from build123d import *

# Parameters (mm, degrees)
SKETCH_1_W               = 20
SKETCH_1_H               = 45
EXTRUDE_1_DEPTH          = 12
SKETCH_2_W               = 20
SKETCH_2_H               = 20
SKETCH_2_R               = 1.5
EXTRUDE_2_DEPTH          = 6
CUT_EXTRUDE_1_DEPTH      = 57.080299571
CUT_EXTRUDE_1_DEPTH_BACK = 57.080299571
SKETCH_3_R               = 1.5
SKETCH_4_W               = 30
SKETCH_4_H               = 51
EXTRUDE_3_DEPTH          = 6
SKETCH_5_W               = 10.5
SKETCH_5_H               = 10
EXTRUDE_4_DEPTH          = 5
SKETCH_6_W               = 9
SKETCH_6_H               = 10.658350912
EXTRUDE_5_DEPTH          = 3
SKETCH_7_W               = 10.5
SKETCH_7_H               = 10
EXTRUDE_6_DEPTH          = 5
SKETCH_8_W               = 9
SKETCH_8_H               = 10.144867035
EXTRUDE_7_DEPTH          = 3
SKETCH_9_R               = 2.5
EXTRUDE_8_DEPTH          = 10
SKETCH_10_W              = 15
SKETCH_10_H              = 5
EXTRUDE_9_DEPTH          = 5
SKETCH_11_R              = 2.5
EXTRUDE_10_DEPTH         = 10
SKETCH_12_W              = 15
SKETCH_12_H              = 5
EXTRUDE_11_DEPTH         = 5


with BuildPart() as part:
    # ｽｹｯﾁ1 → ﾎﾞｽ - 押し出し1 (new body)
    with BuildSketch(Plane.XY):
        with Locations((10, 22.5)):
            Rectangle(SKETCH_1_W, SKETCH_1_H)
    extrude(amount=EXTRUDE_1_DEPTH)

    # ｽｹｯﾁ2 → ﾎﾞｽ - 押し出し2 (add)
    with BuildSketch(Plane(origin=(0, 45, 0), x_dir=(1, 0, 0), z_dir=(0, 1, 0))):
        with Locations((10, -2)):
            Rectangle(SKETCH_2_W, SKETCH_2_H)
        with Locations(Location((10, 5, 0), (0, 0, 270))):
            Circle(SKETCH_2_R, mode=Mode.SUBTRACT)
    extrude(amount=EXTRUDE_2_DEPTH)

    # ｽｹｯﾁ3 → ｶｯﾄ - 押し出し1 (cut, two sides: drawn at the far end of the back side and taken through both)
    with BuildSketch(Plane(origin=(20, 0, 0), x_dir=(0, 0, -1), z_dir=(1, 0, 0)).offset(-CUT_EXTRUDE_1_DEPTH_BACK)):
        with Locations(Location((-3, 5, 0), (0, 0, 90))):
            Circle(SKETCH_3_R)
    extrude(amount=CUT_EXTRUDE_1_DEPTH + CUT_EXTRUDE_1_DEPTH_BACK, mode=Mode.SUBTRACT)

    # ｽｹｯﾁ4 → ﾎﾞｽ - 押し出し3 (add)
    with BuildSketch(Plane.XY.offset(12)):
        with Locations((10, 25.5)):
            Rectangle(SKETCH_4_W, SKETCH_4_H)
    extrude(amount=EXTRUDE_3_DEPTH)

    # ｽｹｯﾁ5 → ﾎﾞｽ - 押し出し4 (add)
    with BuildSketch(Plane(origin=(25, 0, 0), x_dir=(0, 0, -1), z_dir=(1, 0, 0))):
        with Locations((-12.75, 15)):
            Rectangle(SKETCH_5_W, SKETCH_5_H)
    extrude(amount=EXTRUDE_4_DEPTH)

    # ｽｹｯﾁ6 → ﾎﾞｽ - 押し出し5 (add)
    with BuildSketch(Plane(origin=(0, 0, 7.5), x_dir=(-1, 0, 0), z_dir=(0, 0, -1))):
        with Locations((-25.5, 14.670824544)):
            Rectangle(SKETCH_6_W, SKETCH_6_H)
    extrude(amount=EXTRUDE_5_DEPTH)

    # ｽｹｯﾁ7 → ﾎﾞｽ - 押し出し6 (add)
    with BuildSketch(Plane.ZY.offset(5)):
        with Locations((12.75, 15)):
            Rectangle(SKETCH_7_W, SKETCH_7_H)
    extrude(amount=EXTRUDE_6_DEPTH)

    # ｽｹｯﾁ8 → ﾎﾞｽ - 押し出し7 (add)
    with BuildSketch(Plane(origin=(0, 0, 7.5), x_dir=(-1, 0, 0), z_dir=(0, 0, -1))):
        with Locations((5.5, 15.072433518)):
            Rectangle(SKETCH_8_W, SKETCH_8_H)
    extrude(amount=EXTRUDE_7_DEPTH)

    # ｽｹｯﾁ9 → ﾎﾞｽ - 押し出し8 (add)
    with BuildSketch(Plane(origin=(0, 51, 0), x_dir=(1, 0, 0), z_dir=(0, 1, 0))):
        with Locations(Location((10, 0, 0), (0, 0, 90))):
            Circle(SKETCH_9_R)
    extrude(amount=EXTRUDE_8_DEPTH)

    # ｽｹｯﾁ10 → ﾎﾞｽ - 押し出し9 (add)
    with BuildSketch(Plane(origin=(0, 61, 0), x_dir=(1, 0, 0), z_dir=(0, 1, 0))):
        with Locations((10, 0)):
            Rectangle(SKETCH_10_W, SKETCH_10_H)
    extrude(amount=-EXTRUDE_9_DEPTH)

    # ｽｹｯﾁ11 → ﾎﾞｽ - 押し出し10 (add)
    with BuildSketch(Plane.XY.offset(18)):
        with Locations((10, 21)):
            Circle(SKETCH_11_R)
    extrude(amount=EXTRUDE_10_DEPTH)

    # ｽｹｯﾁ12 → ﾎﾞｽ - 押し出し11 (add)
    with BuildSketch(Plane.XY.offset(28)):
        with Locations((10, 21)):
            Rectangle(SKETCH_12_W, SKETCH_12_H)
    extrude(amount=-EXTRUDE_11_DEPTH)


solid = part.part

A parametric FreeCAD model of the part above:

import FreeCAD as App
import Part
import Sketcher
from FreeCAD import Vector
Q = App.Units.Quantity


def add_polygon(sketch, points):
    """Adds a closed chain of lines whose ends are joined by coincident constraints."""
    first, n = sketch.GeometryCount, len(points)
    for a, b in zip(points, points[1:] + points[:1]):
        sketch.addGeometry(Part.LineSegment(App.Vector(*a, 0), App.Vector(*b, 0)), False)
    for i in range(n):
        sketch.addConstraint(Sketcher.Constraint("Coincident", first + i, 2, first + (i + 1) % n, 1))

doc = App.newDocument("Part")
params = doc.addObject("Spreadsheet::Sheet", "Params")
for row, (alias, value) in enumerate([
    ("sketch1_width", "20 mm"),
    ("sketch1_height", "45 mm"),
    ("pad1_length", "12 mm"),
    ("sketch2_diameter", "3 mm"),
    ("sketch2_width", "20 mm"),
    ("pad2_length", "6 mm"),
    ("sketch3_diameter", "3 mm"),
    ("sketch4_width", "30 mm"),
    ("sketch4_height", "51 mm"),
    ("pad3_length", "6 mm"),
    ("sketch5_width", "10 mm"),
    ("sketch5_height", "10.5 mm"),
    ("pad4_length", "5 mm"),
    ("sketch6_width", "9 mm"),
    ("pad5_length", "3 mm"),
    ("sketch7_width", "10 mm"),
    ("sketch7_height", "10.5 mm"),
    ("pad6_length", "5 mm"),
    ("sketch8_width", "9 mm"),
    ("pad7_length", "3 mm"),
    ("sketch9_diameter", "5 mm"),
    ("pad8_length", "10 mm"),
    ("sketch10_width", "15 mm"),
    ("sketch10_height", "5 mm"),
    ("pad9_length", "5 mm"),
    ("sketch11_diameter", "5 mm"),
    ("pad10_length", "10 mm"),
    ("sketch12_width", "15 mm"),
    ("sketch12_height", "5 mm"),
    ("pad11_length", "5 mm"),
], start=1):
    params.set(f"A{row}", alias)
    params.set(f"B{row}", "=" + value)
    params.setAlias(f"B{row}", alias)

body = doc.addObject("PartDesign::Body", "Body")

# Sketch on XY plane
sketch1 = body.newObject("Sketcher::SketchObject", "Sketch")
sketch1.AttachmentSupport = (doc.getObject("XY_Plane"), [""])
sketch1.MapMode = "FlatFace"
add_polygon(sketch1, [(0, 45), (0, 0), (20, 0), (20, 45)])  # lines 0-3
sketch1.addConstraint([
    Sketcher.Constraint("Vertical", 0),
    Sketcher.Constraint("Horizontal", 1),
    Sketcher.Constraint("Vertical", 2),
    Sketcher.Constraint("Horizontal", 3),
    Sketcher.Constraint("Coincident", 0, 2, -1, 1),
    Sketcher.Constraint("DistanceX", 1, 1, 1, 2, Q("20 mm")),
    Sketcher.Constraint("DistanceY", 0, 2, 0, 1, Q("45 mm")),
])
sketch1.setExpression("Constraints[9]", "Params.sketch1_width")
sketch1.setExpression("Constraints[10]", "Params.sketch1_height")
pad1 = body.newObject("PartDesign::Pad", "Pad")
pad1.Profile = sketch1
pad1.setExpression("Length", "Params.pad1_length")

# Sketch on XZ plane
sketch2 = body.newObject("Sketcher::SketchObject", "Sketch001")
sketch2.AttachmentSupport = (doc.getObject("XZ_Plane"), [""])
sketch2.MapMode = "FlatFace"
sketch2.AttachmentOffset = App.Placement(Vector(0, 0, -45), App.Rotation())
add_polygon(sketch2, [(0, -8), (0, 12), (20, 12), (20, -8)])  # lines 0-3
sketch2.addGeometry(Part.Circle(Vector(10, -5, 0), Vector(0, 0, 1), 1.5), False)  # 4
sketch2.addConstraint([
    Sketcher.Constraint("Vertical", 0),
    Sketcher.Constraint("Horizontal", 1),
    Sketcher.Constraint("Vertical", 2),
    Sketcher.Constraint("Horizontal", 3),
    Sketcher.Constraint("PointOnObject", 0, 2, -2),
    Sketcher.Constraint("Equal", 3, 0),
    Sketcher.Constraint("Diameter", 4, Q("3 mm")),
    Sketcher.Constraint("DistanceX", 1, 1, 1, 2, Q("20 mm")),
    Sketcher.Constraint("DistanceX", -1, 1, 4, 3, Q("10 mm")),
    Sketcher.Constraint("DistanceY", 4, 3, -1, 1, Q("5 mm")),
    Sketcher.Constraint("DistanceY", -1, 1, 0, 2, Q("12 mm")),
])
sketch2.setExpression("Constraints[10]", "Params.sketch2_diameter")
sketch2.setExpression("Constraints[11]", "Params.sketch2_width")
pad2 = body.newObject("PartDesign::Pad", "Pad001")
pad2.Profile = sketch2
pad2.setExpression("Length", "Params.pad2_length")
pad2.Reversed = True

# Sketch on YZ plane
sketch3 = body.newObject("Sketcher::SketchObject", "Sketch002")
sketch3.AttachmentSupport = (doc.getObject("YZ_Plane"), [""])
sketch3.MapMode = "FlatFace"
sketch3.AttachmentOffset = App.Placement(Vector(0, 0, 20), App.Rotation())
sketch3.addGeometry(Part.Circle(Vector(5, 3, 0), Vector(0, 0, 1), 1.5), False)
sketch3.addConstraint([
    Sketcher.Constraint("Diameter", 0, Q("3 mm")),
    Sketcher.Constraint("DistanceX", -1, 1, 0, 3, Q("5 mm")),
    Sketcher.Constraint("DistanceY", -1, 1, 0, 3, Q("3 mm")),
])
sketch3.setExpression("Constraints[0]", "Params.sketch3_diameter")
pocket1 = body.newObject("PartDesign::Pocket", "Pocket")
pocket1.Profile = sketch3
pocket1.Type = "ThroughAll"
pocket1.Midplane = True

# Sketch on XY plane
sketch4 = body.newObject("Sketcher::SketchObject", "Sketch003")
sketch4.AttachmentSupport = (doc.getObject("XY_Plane"), [""])
sketch4.MapMode = "FlatFace"
sketch4.AttachmentOffset = App.Placement(Vector(0, 0, 12), App.Rotation())
add_polygon(sketch4, [(-5, 51), (-5, 0), (25, 0), (25, 51)])  # lines 0-3
sketch4.addConstraint([
    Sketcher.Constraint("Vertical", 0),
    Sketcher.Constraint("Horizontal", 1),
    Sketcher.Constraint("Vertical", 2),
    Sketcher.Constraint("Horizontal", 3),
    Sketcher.Constraint("PointOnObject", 0, 2, -1),
    Sketcher.Constraint("DistanceX", 1, 1, 1, 2, Q("30 mm")),
    Sketcher.Constraint("DistanceY", 0, 2, 0, 1, Q("51 mm")),
    Sketcher.Constraint("DistanceX", 0, 2, -1, 1, Q("5 mm")),
])
sketch4.setExpression("Constraints[9]", "Params.sketch4_width")
sketch4.setExpression("Constraints[10]", "Params.sketch4_height")
pad3 = body.newObject("PartDesign::Pad", "Pad002")
pad3.Profile = sketch4
pad3.setExpression("Length", "Params.pad3_length")

# Sketch on YZ plane
sketch5 = body.newObject("Sketcher::SketchObject", "Sketch004")
sketch5.AttachmentSupport = (doc.getObject("YZ_Plane"), [""])
sketch5.MapMode = "FlatFace"
sketch5.AttachmentOffset = App.Placement(Vector(0, 0, 25), App.Rotation())
add_polygon(sketch5, [(20, 18), (10, 18), (10, 8), (20, 8)])  # lines 0-3
sketch5.addConstraint([
    Sketcher.Constraint("Horizontal", 0),
    Sketcher.Constraint("Vertical", 1),
    Sketcher.Constraint("Horizontal", 2),
    Sketcher.Constraint("Vertical", 3),
    Sketcher.Constraint("DistanceX", 0, 2, 0, 1, Q("10 mm")),
    Sketcher.Constraint("DistanceY", 1, 2, 1, 1, Q("10.5 mm")),
    Sketcher.Constraint("DistanceX", -1, 1, 0, 2, Q("10 mm")),
    Sketcher.Constraint("DistanceY", -1, 1, 0, 2, Q("18 mm")),
])
sketch5.setExpression("Constraints[8]", "Params.sketch5_width")
sketch5.setExpression("Constraints[9]", "Params.sketch5_height")
pad4 = body.newObject("PartDesign::Pad", "Pad003")
pad4.Profile = sketch5
pad4.setExpression("Length", "Params.pad4_length")

# Sketch on XY plane
sketch6 = body.newObject("Sketcher::SketchObject", "Sketch005")
sketch6.AttachmentSupport = (doc.getObject("XY_Plane"), [""])
sketch6.MapMode = "FlatFace"
sketch6.AttachmentOffset = App.Placement(Vector(0, 0, 7.5), App.Rotation())
add_polygon(sketch6, [(30, 20), (30, 9), (21, 9), (21, 20)])  # lines 0-3
sketch6.addConstraint([
    Sketcher.Constraint("Vertical", 0),
    Sketcher.Constraint("Horizontal", 1),
    Sketcher.Constraint("Vertical", 2),
    Sketcher.Constraint("Horizontal", 3),
    Sketcher.Constraint("DistanceX", 1, 2, 1, 1, Q("9 mm")),
    Sketcher.Constraint("DistanceX", -1, 1, 0, 2, Q("30 mm")),
    Sketcher.Constraint("DistanceY", -1, 1, 2, 2, Q("20 mm")),
    Sketcher.Constraint("DistanceY", 0, 2, 0, 1, Q("10.658351 mm")),
])
sketch6.setExpression("Constraints[8]", "Params.sketch6_width")
pad5 = body.newObject("PartDesign::Pad", "Pad004")
pad5.Profile = sketch6
pad5.setExpression("Length", "Params.pad5_length")
pad5.Reversed = True

# Sketch on YZ plane
sketch7 = body.newObject("Sketcher::SketchObject", "Sketch006")
sketch7.AttachmentSupport = (doc.getObject("YZ_Plane"), [""])
sketch7.MapMode = "FlatFace"
sketch7.AttachmentOffset = App.Placement(Vector(0, 0, -5), App.Rotation())
add_polygon(sketch7, [(20, 8), (10, 8), (10, 18), (20, 18)])  # lines 0-3
sketch7.addConstraint([
    Sketcher.Constraint("Horizontal", 0),
    Sketcher.Constraint("Vertical", 1),
    Sketcher.Constraint("Horizontal", 2),
    Sketcher.Constraint("Vertical", 3),
    Sketcher.Constraint("DistanceX", 0, 2, 0, 1, Q("10 mm")),
    Sketcher.Constraint("DistanceY", 1, 1, 1, 2, Q("10.5 mm")),
    Sketcher.Constraint("DistanceX", -1, 1, 0, 2, Q("10 mm")),
    Sketcher.Constraint("DistanceY", -1, 1, 1, 2, Q("18 mm")),
])
sketch7.setExpression("Constraints[8]", "Params.sketch7_width")
sketch7.setExpression("Constraints[9]", "Params.sketch7_height")
pad6 = body.newObject("PartDesign::Pad", "Pad005")
pad6.Profile = sketch7
pad6.setExpression("Length", "Params.pad6_length")
pad6.Reversed = True

# Sketch on XY plane
sketch8 = body.newObject("Sketcher::SketchObject", "Sketch007")
sketch8.AttachmentSupport = (doc.getObject("XY_Plane"), [""])
sketch8.MapMode = "FlatFace"
sketch8.AttachmentOffset = App.Placement(Vector(0, 0, 7.5), App.Rotation())
add_polygon(sketch8, [(-1, 20), (-1, 10), (-10, 10), (-10, 20)])  # lines 0-3
sketch8.addConstraint([
    Sketcher.Constraint("Vertical", 0),
    Sketcher.Constraint("Horizontal", 1),
    Sketcher.Constraint("Vertical", 2),
    Sketcher.Constraint("Horizontal", 3),
    Sketcher.Constraint("DistanceX", 1, 2, 1, 1, Q("9 mm")),
    Sketcher.Constraint("DistanceX", 0, 2, -1, 1, Q("1 mm")),
    Sketcher.Constraint("DistanceY", -1, 1, 0, 2, Q("10 mm")),
    Sketcher.Constraint("DistanceY", 0, 2, 0, 1, Q("10.144867 mm")),
])
sketch8.setExpression("Constraints[8]", "Params.sketch8_width")
pad7 = body.newObject("PartDesign::Pad", "Pad006")
pad7.Profile = sketch8
pad7.setExpression("Length", "Params.pad7_length")
pad7.Reversed = True

# Sketch on XZ plane
sketch9 = body.newObject("Sketcher::SketchObject", "Sketch008")
sketch9.AttachmentSupport = (doc.getObject("XZ_Plane"), [""])
sketch9.MapMode = "FlatFace"
sketch9.AttachmentOffset = App.Placement(Vector(0, 0, -51), App.Rotation())
sketch9.addGeometry(Part.Circle(Vector(10, 0, 0), Vector(0, 0, 1), 2.5), False)
sketch9.addConstraint([
    Sketcher.Constraint("PointOnObject", 0, 3, -1),
    Sketcher.Constraint("Diameter", 0, Q("5 mm")),
    Sketcher.Constraint("DistanceX", -1, 1, 0, 3, Q("10 mm")),
])
sketch9.setExpression("Constraints[1]", "Params.sketch9_diameter")
pad8 = body.newObject("PartDesign::Pad", "Pad007")
pad8.Profile = sketch9
pad8.setExpression("Length", "Params.pad8_length")
pad8.Reversed = True

# Sketch on XZ plane
sketch10 = body.newObject("Sketcher::SketchObject", "Sketch009")
sketch10.AttachmentSupport = (doc.getObject("XZ_Plane"), [""])
sketch10.MapMode = "FlatFace"
sketch10.AttachmentOffset = App.Placement(Vector(0, 0, -61), App.Rotation())
add_polygon(sketch10, [(2, -2), (2, 2), (18, 2), (18, -2)])  # lines 0-3
sketch10.addConstraint([
    Sketcher.Constraint("Vertical", 0),
    Sketcher.Constraint("Horizontal", 1),
    Sketcher.Constraint("Vertical", 2),
    Sketcher.Constraint("Horizontal", 3),
    Sketcher.Constraint("DistanceX", 1, 1, 1, 2, Q("15 mm")),
    Sketcher.Constraint("DistanceY", 0, 1, 0, 2, Q("5 mm")),
    Sketcher.Constraint("DistanceX", -1, 1, 0, 2, Q("2.5 mm")),
    Sketcher.Constraint("DistanceY", -1, 1, 0, 2, Q("2.5 mm")),
])
sketch10.setExpression("Constraints[8]", "Params.sketch10_width")
sketch10.setExpression("Constraints[9]", "Params.sketch10_height")
pad9 = body.newObject("PartDesign::Pad", "Pad008")
pad9.Profile = sketch10
pad9.setExpression("Length", "Params.pad9_length")

# Sketch on XY plane
sketch11 = body.newObject("Sketcher::SketchObject", "Sketch010")
sketch11.AttachmentSupport = (doc.getObject("XY_Plane"), [""])
sketch11.MapMode = "FlatFace"
sketch11.AttachmentOffset = App.Placement(Vector(0, 0, 18), App.Rotation())
sketch11.addGeometry(Part.Circle(Vector(10, 21, 0), Vector(0, 0, 1), 2.5), False)
sketch11.addConstraint([
    Sketcher.Constraint("Diameter", 0, Q("5 mm")),
    Sketcher.Constraint("DistanceX", -1, 1, 0, 3, Q("10 mm")),
    Sketcher.Constraint("DistanceY", -1, 1, 0, 3, Q("21 mm")),
])
sketch11.setExpression("Constraints[0]", "Params.sketch11_diameter")
pad10 = body.newObject("PartDesign::Pad", "Pad009")
pad10.Profile = sketch11
pad10.setExpression("Length", "Params.pad10_length")

# Sketch on XY plane
sketch12 = body.newObject("Sketcher::SketchObject", "Sketch011")
sketch12.AttachmentSupport = (doc.getObject("XY_Plane"), [""])
sketch12.MapMode = "FlatFace"
sketch12.AttachmentOffset = App.Placement(Vector(0, 0, 28), App.Rotation())
add_polygon(sketch12, [(2, 24), (2, 18), (18, 18), (18, 24)])  # lines 0-3
sketch12.addConstraint([
    Sketcher.Constraint("Vertical", 0),
    Sketcher.Constraint("Horizontal", 1),
    Sketcher.Constraint("Vertical", 2),
    Sketcher.Constraint("Horizontal", 3),
    Sketcher.Constraint("DistanceX", 1, 1, 1, 2, Q("15 mm")),
    Sketcher.Constraint("DistanceY", 0, 2, 0, 1, Q("5 mm")),
    Sketcher.Constraint("DistanceX", -1, 1, 0, 2, Q("2.5 mm")),
    Sketcher.Constraint("DistanceY", -1, 1, 0, 2, Q("18.5 mm")),
])
sketch12.setExpression("Constraints[8]", "Params.sketch12_width")
sketch12.setExpression("Constraints[9]", "Params.sketch12_height")
pad11 = body.newObject("PartDesign::Pad", "Pad010")
pad11.Profile = sketch12
pad11.setExpression("Length", "Params.pad11_length")
pad11.Reversed = True

doc.recompute()
